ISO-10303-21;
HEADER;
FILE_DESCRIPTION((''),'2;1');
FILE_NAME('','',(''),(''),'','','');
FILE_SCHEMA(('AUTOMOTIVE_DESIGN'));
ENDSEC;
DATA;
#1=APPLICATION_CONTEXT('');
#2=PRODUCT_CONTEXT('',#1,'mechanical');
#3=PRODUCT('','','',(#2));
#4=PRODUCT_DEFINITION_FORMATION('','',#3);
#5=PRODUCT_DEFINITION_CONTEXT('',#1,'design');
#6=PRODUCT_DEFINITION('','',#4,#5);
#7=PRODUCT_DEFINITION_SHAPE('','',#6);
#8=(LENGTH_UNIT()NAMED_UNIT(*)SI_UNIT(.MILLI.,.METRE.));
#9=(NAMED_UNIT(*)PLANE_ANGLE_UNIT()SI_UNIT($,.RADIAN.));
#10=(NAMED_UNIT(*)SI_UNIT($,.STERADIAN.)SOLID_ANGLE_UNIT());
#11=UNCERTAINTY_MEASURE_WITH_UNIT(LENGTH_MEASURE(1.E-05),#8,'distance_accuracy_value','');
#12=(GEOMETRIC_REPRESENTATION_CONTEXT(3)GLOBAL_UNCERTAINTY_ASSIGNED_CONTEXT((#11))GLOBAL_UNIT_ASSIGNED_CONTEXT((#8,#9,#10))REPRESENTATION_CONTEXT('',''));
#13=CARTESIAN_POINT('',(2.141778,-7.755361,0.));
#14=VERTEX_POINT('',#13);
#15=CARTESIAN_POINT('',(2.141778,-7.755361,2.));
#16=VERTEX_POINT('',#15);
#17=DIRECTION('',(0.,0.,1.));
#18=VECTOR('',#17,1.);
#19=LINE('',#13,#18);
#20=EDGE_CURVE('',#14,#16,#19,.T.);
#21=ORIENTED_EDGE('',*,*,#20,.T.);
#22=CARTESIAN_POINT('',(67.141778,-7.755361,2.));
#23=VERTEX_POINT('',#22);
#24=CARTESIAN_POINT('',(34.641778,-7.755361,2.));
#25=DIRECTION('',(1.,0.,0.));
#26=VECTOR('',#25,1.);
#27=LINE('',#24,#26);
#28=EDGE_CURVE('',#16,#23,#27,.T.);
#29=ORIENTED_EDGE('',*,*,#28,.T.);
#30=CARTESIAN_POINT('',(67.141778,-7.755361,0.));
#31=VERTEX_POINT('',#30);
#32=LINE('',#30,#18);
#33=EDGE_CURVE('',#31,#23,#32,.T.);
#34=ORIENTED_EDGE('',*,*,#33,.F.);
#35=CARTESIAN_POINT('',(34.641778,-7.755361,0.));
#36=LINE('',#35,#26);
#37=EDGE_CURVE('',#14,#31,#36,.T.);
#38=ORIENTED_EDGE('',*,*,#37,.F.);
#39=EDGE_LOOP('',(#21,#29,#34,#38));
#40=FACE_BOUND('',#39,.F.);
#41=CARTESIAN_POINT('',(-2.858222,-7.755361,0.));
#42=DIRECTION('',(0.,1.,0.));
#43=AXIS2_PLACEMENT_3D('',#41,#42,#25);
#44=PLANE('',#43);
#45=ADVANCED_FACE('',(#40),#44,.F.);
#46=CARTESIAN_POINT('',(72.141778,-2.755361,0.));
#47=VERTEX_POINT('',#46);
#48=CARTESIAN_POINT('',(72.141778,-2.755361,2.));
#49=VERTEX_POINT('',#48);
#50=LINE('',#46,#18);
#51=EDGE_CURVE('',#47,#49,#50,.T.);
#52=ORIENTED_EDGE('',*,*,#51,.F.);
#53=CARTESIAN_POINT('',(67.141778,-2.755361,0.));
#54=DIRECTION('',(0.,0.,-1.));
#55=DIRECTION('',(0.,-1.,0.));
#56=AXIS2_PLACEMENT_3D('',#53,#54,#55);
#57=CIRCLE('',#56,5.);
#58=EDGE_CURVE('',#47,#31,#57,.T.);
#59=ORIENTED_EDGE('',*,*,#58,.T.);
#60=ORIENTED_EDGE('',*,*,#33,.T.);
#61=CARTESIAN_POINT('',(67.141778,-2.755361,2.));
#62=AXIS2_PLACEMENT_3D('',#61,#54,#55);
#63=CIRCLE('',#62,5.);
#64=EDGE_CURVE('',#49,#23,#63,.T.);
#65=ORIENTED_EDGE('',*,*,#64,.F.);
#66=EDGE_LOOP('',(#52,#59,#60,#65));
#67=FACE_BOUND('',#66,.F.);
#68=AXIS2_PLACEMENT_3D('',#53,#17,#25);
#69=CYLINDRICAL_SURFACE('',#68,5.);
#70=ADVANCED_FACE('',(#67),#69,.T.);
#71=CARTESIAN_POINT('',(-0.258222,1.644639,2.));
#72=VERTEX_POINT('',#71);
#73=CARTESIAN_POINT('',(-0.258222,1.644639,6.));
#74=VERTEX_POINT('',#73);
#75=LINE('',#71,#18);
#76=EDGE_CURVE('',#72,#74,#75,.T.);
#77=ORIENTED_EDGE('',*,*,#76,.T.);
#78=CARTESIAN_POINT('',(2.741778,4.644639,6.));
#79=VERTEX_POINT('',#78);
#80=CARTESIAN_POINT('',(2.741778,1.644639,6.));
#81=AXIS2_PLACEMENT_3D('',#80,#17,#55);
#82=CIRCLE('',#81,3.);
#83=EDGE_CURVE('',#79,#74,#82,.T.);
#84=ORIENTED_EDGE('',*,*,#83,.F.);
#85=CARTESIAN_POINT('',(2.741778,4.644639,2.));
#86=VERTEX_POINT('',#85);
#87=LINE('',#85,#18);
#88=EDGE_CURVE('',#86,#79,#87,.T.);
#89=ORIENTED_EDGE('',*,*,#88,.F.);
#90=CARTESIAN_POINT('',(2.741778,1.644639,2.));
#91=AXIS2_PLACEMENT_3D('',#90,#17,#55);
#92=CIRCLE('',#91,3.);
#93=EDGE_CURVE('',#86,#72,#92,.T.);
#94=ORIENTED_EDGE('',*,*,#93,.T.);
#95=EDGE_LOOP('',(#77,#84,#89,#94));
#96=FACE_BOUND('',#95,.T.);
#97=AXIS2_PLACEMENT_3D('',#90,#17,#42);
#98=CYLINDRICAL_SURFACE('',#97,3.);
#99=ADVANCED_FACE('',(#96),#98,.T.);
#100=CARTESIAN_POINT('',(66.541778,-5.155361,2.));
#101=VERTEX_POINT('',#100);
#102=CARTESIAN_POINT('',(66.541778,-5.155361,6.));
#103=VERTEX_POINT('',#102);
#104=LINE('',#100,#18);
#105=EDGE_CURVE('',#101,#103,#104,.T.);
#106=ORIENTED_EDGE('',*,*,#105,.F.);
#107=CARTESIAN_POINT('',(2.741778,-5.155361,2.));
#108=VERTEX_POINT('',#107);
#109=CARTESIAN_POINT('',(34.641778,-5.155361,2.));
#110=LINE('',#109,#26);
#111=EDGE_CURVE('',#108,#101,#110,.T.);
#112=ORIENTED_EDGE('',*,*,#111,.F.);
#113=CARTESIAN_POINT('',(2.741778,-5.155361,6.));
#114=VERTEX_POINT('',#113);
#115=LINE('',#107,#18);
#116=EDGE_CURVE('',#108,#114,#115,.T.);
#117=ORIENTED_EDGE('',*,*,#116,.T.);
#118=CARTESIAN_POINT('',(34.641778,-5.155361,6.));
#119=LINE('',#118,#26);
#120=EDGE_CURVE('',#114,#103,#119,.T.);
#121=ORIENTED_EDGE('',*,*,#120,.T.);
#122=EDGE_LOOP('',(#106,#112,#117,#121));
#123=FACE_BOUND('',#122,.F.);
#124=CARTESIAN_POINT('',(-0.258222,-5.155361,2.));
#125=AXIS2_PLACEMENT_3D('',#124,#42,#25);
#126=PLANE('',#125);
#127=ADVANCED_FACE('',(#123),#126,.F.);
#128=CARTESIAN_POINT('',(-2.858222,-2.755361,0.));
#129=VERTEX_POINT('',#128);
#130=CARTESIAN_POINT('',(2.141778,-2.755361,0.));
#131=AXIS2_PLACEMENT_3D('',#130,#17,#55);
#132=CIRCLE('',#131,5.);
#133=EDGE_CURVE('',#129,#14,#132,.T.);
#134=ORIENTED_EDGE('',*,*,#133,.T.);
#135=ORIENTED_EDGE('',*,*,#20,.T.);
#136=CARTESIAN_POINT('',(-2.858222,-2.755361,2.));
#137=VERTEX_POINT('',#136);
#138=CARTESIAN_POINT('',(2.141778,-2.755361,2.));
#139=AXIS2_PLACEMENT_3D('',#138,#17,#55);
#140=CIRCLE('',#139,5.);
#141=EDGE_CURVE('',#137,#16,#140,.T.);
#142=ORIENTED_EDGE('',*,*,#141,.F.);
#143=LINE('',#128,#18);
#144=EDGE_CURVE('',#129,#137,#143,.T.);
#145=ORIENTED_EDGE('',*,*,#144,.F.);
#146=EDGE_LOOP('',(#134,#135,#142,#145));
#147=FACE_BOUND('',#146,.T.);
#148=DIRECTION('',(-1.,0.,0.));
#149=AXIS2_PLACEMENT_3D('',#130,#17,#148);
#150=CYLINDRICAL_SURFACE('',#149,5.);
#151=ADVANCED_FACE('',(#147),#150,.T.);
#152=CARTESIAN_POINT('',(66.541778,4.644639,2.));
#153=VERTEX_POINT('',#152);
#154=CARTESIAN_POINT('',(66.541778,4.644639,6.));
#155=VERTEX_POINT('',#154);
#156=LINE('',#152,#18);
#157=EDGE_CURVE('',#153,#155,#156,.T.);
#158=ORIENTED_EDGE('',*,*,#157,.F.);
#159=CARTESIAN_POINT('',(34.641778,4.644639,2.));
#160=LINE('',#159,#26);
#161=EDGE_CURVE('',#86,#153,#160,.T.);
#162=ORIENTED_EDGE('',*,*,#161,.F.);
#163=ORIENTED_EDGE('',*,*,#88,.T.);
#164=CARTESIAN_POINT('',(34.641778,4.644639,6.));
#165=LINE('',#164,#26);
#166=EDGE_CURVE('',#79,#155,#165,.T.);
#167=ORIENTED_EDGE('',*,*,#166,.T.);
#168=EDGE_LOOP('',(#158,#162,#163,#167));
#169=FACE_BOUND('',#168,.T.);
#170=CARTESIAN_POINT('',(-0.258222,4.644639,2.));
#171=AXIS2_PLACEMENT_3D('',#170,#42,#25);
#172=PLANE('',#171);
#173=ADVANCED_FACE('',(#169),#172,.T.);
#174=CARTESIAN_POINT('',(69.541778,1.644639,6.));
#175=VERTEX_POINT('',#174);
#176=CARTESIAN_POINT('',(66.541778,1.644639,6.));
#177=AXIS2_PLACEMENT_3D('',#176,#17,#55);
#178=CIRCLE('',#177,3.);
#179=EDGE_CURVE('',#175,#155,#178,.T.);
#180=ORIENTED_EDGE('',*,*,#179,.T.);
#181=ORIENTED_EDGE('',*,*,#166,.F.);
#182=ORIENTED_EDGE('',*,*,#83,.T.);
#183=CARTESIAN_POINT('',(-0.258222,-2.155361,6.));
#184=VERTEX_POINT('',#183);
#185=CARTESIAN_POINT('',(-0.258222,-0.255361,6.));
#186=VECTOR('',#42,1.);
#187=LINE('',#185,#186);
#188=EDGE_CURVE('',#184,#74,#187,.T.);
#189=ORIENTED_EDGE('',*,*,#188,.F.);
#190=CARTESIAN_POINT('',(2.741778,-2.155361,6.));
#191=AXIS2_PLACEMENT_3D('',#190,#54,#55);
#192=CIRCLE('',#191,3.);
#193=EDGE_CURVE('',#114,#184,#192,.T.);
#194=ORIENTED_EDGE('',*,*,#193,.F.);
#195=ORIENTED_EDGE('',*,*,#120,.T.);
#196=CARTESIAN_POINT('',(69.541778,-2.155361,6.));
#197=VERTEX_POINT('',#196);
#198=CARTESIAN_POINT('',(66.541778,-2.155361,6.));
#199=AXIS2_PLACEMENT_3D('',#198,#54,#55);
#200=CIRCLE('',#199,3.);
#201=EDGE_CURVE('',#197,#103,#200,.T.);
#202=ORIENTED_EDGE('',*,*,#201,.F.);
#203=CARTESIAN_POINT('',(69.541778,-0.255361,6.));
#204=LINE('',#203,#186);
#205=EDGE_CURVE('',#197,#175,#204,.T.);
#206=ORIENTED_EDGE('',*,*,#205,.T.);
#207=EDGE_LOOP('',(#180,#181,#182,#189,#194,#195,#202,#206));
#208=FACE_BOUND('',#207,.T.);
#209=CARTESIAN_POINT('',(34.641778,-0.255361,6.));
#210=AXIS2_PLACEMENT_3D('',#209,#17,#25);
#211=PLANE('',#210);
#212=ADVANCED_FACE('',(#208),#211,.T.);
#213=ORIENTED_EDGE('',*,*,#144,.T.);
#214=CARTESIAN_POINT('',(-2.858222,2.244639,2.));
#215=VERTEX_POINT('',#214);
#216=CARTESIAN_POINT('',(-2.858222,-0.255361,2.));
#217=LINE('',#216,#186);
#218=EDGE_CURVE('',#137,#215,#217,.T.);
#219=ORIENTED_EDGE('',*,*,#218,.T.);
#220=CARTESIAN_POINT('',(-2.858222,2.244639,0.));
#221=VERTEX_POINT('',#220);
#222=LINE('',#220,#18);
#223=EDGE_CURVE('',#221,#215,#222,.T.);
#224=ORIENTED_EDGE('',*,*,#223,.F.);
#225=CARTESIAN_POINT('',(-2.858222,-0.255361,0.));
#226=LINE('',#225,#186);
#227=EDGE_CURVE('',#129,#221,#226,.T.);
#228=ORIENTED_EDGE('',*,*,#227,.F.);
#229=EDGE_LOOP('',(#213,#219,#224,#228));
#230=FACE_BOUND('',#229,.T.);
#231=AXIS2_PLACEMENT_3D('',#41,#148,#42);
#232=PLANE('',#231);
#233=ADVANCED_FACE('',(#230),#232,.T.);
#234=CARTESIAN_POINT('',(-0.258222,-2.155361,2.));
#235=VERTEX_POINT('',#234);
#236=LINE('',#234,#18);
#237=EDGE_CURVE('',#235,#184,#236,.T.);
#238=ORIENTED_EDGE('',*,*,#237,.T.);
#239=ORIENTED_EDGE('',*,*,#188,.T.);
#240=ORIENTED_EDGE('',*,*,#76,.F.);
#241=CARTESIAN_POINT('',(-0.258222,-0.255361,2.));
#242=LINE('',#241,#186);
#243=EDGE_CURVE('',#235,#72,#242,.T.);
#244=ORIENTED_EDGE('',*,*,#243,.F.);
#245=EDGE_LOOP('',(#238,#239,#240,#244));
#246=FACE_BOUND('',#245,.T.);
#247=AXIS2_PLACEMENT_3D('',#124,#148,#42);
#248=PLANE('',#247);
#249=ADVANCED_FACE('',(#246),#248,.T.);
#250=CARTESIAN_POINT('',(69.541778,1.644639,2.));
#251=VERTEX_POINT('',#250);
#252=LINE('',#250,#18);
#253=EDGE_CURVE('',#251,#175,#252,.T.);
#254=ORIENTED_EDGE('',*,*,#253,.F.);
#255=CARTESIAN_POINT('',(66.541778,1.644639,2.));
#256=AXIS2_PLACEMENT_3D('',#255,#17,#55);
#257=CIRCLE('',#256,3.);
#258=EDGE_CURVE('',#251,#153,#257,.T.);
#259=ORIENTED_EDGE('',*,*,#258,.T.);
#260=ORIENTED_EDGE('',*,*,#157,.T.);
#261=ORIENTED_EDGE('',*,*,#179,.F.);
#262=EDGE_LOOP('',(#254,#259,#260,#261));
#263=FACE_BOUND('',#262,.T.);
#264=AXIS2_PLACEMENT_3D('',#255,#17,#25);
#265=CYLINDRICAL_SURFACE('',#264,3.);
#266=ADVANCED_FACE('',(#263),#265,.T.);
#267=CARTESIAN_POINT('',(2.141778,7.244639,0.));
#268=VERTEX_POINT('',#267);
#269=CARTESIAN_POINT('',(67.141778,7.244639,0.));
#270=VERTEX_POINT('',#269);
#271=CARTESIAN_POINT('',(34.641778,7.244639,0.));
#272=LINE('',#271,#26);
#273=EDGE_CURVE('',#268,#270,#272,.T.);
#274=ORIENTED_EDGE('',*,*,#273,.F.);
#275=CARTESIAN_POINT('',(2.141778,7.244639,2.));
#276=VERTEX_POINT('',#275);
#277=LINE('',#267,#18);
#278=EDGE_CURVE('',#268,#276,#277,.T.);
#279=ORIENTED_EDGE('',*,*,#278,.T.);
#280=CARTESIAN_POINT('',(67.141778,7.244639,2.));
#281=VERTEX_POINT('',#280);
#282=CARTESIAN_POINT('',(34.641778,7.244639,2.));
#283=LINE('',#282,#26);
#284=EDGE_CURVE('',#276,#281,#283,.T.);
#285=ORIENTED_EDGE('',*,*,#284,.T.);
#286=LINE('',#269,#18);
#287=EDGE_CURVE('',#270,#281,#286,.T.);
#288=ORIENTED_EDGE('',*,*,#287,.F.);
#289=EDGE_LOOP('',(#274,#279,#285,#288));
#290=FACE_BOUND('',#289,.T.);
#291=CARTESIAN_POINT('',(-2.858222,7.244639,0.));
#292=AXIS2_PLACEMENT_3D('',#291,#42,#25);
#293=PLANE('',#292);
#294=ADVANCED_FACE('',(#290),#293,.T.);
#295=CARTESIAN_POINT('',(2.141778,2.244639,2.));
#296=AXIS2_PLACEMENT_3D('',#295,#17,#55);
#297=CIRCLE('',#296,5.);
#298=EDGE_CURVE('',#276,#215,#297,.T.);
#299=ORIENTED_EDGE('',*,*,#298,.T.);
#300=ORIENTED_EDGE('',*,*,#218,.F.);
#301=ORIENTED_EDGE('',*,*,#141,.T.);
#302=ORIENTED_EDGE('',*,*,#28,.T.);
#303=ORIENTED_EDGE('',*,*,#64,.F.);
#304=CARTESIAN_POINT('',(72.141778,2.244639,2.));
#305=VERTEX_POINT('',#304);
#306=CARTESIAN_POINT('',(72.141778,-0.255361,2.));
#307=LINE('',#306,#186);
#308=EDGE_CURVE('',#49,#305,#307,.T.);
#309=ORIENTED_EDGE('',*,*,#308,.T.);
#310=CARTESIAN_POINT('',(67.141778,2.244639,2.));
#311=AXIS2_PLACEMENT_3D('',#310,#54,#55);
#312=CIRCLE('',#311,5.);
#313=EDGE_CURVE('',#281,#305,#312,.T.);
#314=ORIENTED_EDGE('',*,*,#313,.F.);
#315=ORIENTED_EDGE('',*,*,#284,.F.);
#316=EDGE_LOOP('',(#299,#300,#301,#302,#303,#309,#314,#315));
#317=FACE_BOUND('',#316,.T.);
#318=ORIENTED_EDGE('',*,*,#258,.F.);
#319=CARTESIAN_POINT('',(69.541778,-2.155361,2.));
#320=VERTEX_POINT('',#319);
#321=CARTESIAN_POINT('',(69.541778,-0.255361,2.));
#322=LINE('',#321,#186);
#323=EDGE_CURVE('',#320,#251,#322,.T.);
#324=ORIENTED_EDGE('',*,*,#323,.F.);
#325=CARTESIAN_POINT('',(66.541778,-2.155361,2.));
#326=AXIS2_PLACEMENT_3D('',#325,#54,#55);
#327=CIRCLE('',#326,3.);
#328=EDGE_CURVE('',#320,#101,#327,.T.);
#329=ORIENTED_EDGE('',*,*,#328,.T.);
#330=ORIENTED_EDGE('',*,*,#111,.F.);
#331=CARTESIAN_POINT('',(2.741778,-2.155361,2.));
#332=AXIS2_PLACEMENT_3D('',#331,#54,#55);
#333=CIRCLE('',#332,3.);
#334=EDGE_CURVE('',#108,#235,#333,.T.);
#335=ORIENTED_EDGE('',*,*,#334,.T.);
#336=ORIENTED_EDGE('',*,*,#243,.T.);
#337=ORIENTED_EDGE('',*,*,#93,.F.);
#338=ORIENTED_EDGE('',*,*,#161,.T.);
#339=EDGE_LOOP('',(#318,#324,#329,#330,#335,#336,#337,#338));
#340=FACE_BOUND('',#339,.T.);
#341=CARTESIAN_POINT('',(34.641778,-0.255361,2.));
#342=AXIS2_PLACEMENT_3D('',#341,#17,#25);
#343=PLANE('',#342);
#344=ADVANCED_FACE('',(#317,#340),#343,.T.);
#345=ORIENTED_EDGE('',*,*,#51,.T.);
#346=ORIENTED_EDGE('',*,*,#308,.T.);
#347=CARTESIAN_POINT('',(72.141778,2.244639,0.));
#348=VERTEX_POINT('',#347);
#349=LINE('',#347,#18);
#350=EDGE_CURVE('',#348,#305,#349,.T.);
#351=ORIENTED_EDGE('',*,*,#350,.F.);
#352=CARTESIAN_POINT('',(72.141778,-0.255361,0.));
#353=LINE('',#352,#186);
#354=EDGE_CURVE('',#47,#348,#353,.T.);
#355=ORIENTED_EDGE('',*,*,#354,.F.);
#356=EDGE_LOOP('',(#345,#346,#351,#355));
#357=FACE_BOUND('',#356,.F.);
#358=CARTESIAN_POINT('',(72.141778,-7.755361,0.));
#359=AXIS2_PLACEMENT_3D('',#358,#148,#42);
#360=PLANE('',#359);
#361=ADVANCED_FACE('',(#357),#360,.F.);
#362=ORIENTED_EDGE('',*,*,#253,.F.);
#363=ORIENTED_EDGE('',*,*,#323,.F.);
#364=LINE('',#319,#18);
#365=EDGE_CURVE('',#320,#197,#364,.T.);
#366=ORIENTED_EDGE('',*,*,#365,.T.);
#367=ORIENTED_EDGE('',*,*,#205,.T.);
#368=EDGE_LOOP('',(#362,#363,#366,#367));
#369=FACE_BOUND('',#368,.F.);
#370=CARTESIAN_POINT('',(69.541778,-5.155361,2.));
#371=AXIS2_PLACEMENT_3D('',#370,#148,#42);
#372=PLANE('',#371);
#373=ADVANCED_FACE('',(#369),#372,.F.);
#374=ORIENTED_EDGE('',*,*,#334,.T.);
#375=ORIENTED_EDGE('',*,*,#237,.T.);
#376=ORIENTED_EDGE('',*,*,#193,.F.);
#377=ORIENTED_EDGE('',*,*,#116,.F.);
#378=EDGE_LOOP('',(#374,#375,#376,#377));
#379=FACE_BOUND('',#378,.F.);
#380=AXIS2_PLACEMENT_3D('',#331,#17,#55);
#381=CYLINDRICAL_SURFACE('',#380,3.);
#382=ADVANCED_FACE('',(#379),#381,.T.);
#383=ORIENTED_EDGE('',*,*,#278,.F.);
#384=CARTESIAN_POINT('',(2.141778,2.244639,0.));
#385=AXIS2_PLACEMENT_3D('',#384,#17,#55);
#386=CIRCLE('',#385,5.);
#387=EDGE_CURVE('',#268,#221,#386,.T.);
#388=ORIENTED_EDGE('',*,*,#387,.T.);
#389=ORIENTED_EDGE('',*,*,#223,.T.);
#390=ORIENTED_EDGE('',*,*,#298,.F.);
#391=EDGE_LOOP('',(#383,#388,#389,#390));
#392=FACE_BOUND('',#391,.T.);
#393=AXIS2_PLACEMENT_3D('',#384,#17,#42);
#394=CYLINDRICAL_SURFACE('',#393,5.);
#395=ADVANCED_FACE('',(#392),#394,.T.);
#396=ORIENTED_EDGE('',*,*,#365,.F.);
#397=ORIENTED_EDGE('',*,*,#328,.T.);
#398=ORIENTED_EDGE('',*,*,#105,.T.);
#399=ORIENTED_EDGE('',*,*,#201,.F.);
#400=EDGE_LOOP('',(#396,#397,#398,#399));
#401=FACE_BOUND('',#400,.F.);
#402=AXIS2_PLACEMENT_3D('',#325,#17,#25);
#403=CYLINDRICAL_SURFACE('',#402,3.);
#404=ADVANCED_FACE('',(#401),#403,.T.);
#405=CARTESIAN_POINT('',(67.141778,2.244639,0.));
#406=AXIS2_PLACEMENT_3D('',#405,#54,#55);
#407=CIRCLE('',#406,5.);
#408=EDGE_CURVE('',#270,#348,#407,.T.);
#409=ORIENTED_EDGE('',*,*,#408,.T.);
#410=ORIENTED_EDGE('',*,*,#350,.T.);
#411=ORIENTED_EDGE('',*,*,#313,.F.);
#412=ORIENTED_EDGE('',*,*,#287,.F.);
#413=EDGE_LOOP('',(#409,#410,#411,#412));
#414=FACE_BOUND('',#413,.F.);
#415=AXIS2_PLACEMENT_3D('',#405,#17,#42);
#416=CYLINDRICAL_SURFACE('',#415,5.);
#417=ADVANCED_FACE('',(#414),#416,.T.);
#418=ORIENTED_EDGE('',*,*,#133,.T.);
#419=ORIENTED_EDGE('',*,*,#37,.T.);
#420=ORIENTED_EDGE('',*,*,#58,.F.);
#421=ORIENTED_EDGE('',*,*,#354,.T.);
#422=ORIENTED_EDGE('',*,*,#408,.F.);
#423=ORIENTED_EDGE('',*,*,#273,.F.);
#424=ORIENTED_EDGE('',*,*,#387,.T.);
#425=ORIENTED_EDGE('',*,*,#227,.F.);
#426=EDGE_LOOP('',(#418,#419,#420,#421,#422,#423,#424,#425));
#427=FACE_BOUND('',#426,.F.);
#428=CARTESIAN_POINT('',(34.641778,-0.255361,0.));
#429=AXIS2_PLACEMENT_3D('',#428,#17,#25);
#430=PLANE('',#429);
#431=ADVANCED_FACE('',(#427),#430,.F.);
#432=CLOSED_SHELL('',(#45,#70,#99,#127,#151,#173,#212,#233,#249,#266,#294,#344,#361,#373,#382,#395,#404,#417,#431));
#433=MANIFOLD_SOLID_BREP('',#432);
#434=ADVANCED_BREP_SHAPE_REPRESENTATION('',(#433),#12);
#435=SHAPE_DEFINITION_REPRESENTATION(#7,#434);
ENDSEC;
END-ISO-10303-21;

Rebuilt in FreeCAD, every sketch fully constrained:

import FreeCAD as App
import Part
import Sketcher


def edges_at(feature, points):
    """Names of the edges that pass closest to the given points."""
    edges = feature.Shape.Edges
    near = lambda p: min(range(len(edges)), key=lambda i: edges[i].distToShape(Part.Vertex(*p))[0])
    return sorted({f"Edge{near(p) + 1}" for p in points})

doc = App.newDocument("Part")
params = doc.addObject("Spreadsheet::Sheet", "Params")
for row, (alias, value) in enumerate([
    ("sketch1_width", "75 mm"),
    ("sketch1_height", "15 mm"),
    ("pad1_length", "2 mm"),
    ("sketch2_width", "69.8 mm"),
    ("sketch2_height", "9.8 mm"),
    ("pad2_length", "4 mm"),
    ("fillet_radius", "5 mm"),
    ("fillet2_radius", "3 mm"),
    ("fillet3_radius", "5 mm"),
    ("fillet4_radius", "5 mm"),
    ("fillet5_radius", "3 mm"),
    ("fillet6_radius", "3 mm"),
    ("fillet7_radius", "5 mm"),
    ("fillet8_radius", "3 mm"),
], start=1):
    params.set(f"A{row}", alias)
    params.set(f"B{row}", "=" + value)
    params.setAlias(f"B{row}", alias)

body = doc.addObject("PartDesign::Body", "Body")

# Sketch on XY plane
sketch1 = body.newObject("Sketcher::SketchObject", "Sketch")
sketch1.AttachmentSupport = (doc.getObject("XY_Plane"), [""])
sketch1.MapMode = "FlatFace"
sketch1.addGeometry([
    Part.LineSegment(App.Vector(-2.858222, 7.244639, 0), App.Vector(-2.858222, -7.755361, 0)),
    Part.LineSegment(App.Vector(-2.858222, -7.755361, 0), App.Vector(72.141778, -7.755361, 0)),
    Part.LineSegment(App.Vector(72.141778, -7.755361, 0), App.Vector(72.141778, 7.244639, 0)),
    Part.LineSegment(App.Vector(72.141778, 7.244639, 0), App.Vector(-2.858222, 7.244639, 0)),
], False)
sketch1.addConstraint([
    Sketcher.Constraint("Coincident", 0, 2, 1, 1),
    Sketcher.Constraint("Coincident", 1, 2, 2, 1),
    Sketcher.Constraint("Coincident", 2, 2, 3, 1),
    Sketcher.Constraint("Coincident", 3, 2, 0, 1),
    Sketcher.Constraint("Vertical", 0),
    Sketcher.Constraint("Horizontal", 1),
    Sketcher.Constraint("Vertical", 2),
    Sketcher.Constraint("Horizontal", 3),
    Sketcher.Constraint("DistanceX", 1, 1, 1, 2, 75.0),
    Sketcher.Constraint("DistanceY", 0, 2, 0, 1, 15.0),
    Sketcher.Constraint("DistanceX", 0, 2, -1, 1, 2.858222),
    Sketcher.Constraint("DistanceY", 0, 2, -1, 1, 7.755361),
])
sketch1.setExpression("Constraints[8]", "Params.sketch1_width")
sketch1.setExpression("Constraints[9]", "Params.sketch1_height")
pad1 = body.newObject("PartDesign::Pad", "Pad")
pad1.Profile = sketch1
pad1.setExpression("Length", "Params.pad1_length")

# Sketch on XY plane
sketch2 = body.newObject("Sketcher::SketchObject", "Sketch001")
sketch2.AttachmentSupport = (doc.getObject("XY_Plane"), [""])
sketch2.MapMode = "FlatFace"
sketch2.AttachmentOffset = App.Placement(App.Vector(0, 0, 2), App.Rotation())
sketch2.addGeometry([
    Part.LineSegment(App.Vector(-0.258222, 4.644639, 0), App.Vector(-0.258222, -5.155361, 0)),
    Part.LineSegment(App.Vector(-0.258222, -5.155361, 0), App.Vector(69.541778, -5.155361, 0)),
    Part.LineSegment(App.Vector(69.541778, -5.155361, 0), App.Vector(69.541778, 4.644639, 0)),
    Part.LineSegment(App.Vector(69.541778, 4.644639, 0), App.Vector(-0.258222, 4.644639, 0)),
], False)
sketch2.addConstraint([
    Sketcher.Constraint("Coincident", 0, 2, 1, 1),
    Sketcher.Constraint("Coincident", 1, 2, 2, 1),
    Sketcher.Constraint("Coincident", 2, 2, 3, 1),
    Sketcher.Constraint("Coincident", 3, 2, 0, 1),
    Sketcher.Constraint("Vertical", 0),
    Sketcher.Constraint("Horizontal", 1),
    Sketcher.Constraint("Vertical", 2),
    Sketcher.Constraint("Horizontal", 3),
    Sketcher.Constraint("DistanceX", 1, 1, 1, 2, 69.8),
    Sketcher.Constraint("DistanceY", 0, 2, 0, 1, 9.8),
    Sketcher.Constraint("DistanceY", 0, 2, -1, 1, 5.155361),
    Sketcher.Constraint("DistanceX", 0, 2, -1, 1, 0.258222),
])
sketch2.setExpression("Constraints[8]", "Params.sketch2_width")
sketch2.setExpression("Constraints[9]", "Params.sketch2_height")
pad2 = body.newObject("PartDesign::Pad", "Pad001")
pad2.Profile = sketch2
pad2.setExpression("Length", "Params.pad2_length")
doc.recompute()

fillet = body.newObject("PartDesign::Fillet", "Fillet")
fillet.Base = (pad2, edges_at(pad2, [(-2.858, -7.755, 1)]))
fillet.setExpression("Radius", "Params.fillet_radius")
doc.recompute()

fillet2 = body.newObject("PartDesign::Fillet", "Fillet001")
fillet2.Base = (fillet, edges_at(fillet, [(-0.258, -5.155, 4)]))
fillet2.setExpression("Radius", "Params.fillet2_radius")
doc.recompute()

fillet3 = body.newObject("PartDesign::Fillet", "Fillet002")
fillet3.Base = (fillet2, edges_at(fillet2, [(72.142, 7.245, 1)]))
fillet3.setExpression("Radius", "Params.fillet3_radius")
doc.recompute()

fillet4 = body.newObject("PartDesign::Fillet", "Fillet003")
fillet4.Base = (fillet3, edges_at(fillet3, [(72.142, -7.755, 1)]))
fillet4.setExpression("Radius", "Params.fillet4_radius")
doc.recompute()

fillet5 = body.newObject("PartDesign::Fillet", "Fillet004")
fillet5.Base = (fillet4, edges_at(fillet4, [(69.542, 4.645, 4)]))
fillet5.setExpression("Radius", "Params.fillet5_radius")
doc.recompute()

fillet6 = body.newObject("PartDesign::Fillet", "Fillet005")
fillet6.Base = (fillet5, edges_at(fillet5, [(69.542, -5.155, 4)]))
fillet6.setExpression("Radius", "Params.fillet6_radius")
doc.recompute()

fillet7 = body.newObject("PartDesign::Fillet", "Fillet006")
fillet7.Base = (fillet6, edges_at(fillet6, [(-2.858, 7.245, 1)]))
fillet7.setExpression("Radius", "Params.fillet7_radius")
doc.recompute()

fillet8 = body.newObject("PartDesign::Fillet", "Fillet007")
fillet8.Base = (fillet7, edges_at(fillet7, [(-0.258, 4.645, 4)]))
fillet8.setExpression("Radius", "Params.fillet8_radius")

doc.recompute()
